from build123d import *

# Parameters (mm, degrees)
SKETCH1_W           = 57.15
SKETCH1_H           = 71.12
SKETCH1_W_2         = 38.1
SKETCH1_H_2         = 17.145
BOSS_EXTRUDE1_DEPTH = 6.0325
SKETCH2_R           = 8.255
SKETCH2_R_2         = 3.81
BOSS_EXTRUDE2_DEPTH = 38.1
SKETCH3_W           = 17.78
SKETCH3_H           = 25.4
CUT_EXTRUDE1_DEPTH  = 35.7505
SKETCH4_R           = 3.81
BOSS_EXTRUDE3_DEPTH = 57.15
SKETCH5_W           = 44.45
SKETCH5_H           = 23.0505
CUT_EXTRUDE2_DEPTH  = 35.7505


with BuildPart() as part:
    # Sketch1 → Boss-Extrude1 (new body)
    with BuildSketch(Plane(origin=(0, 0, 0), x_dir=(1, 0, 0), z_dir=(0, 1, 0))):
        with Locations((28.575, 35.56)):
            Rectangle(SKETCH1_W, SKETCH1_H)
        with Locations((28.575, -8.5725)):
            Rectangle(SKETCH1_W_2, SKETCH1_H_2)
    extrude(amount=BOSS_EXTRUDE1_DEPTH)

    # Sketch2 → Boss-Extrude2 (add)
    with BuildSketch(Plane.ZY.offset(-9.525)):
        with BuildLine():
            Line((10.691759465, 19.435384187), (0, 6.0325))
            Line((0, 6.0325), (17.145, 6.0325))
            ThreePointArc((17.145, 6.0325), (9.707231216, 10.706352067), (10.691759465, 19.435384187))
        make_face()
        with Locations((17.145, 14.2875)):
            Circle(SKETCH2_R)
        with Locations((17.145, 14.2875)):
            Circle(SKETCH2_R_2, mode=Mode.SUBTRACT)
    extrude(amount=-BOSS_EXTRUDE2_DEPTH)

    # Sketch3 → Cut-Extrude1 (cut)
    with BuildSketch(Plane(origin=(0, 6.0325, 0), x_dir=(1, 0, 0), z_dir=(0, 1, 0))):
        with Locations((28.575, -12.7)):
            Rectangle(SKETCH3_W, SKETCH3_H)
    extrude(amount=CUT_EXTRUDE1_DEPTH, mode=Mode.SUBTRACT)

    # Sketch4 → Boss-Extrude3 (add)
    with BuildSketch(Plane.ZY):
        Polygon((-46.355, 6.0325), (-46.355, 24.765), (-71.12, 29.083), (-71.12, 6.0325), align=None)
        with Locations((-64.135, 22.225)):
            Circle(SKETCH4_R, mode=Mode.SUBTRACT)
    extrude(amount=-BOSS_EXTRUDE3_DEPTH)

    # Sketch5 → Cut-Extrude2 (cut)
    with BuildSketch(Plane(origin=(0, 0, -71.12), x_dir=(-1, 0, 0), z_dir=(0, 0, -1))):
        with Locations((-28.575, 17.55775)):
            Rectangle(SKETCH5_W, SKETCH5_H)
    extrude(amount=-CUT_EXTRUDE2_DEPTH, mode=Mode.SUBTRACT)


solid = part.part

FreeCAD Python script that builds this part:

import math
import FreeCAD as App
import Part
import Sketcher

V = App.Vector
Q = App.Units.Quantity


def add_polygon(sketch, points):
    """Adds a closed chain of lines whose ends are joined by coincident constraints."""
    first, n = sketch.GeometryCount, len(points)
    for a, b in zip(points, points[1:] + points[:1]):
        sketch.addGeometry(Part.LineSegment(App.Vector(*a, 0), App.Vector(*b, 0)), False)
    for i in range(n):
        sketch.addConstraint(Sketcher.Constraint("Coincident", first + i, 2, first + (i + 1) % n, 1))

doc = App.newDocument("Part")
body = doc.addObject("PartDesign::Body", "Body")

# Sketch on XZ plane
sketch1 = body.newObject("Sketcher::SketchObject", "Sketch")
sketch1.AttachmentSupport = (doc.getObject("XZ_Plane"), [""])
sketch1.MapMode = "FlatFace"
add_polygon(sketch1, [(0, -71), (0, 0), (10, 0), (10, 17), (48, 17), (48, 0), (57, 0), (57, -71)])  # lines 0-7
sketch1.addConstraint(Sketcher.Constraint("Vertical", 0))
sketch1.addConstraint(Sketcher.Constraint("Horizontal", 1))
sketch1.addConstraint(Sketcher.Constraint("Vertical", 2))
sketch1.addConstraint(Sketcher.Constraint("Horizontal", 3))
sketch1.addConstraint(Sketcher.Constraint("Vertical", 4))
sketch1.addConstraint(Sketcher.Constraint("Horizontal", 5))
sketch1.addConstraint(Sketcher.Constraint("Vertical", 6))
sketch1.addConstraint(Sketcher.Constraint("Horizontal", 7))
sketch1.addConstraint(Sketcher.Constraint("Coincident", 0, 2, -1, 1))
sketch1.addConstraint(Sketcher.Constraint("PointOnObject", 4, 2, -1))
sketch1.addConstraint(Sketcher.Constraint("Equal", 1, 5))
sketch1.addConstraint(Sketcher.Constraint("DistanceX", 3, 1, 3, 2, Q("1.5 in")))
sketch1.addConstraint(Sketcher.Constraint("DistanceY", 0, 1, 0, 2, Q("2.8 in")))
sketch1.addConstraint(Sketcher.Constraint("DistanceX", 7, 2, 7, 1, Q("2.25 in")))
sketch1.addConstraint(Sketcher.Constraint("DistanceY", 2, 1, 2, 2, Q("0.675 in")))
pad1 = body.newObject("PartDesign::Pad", "Pad")
pad1.Profile = sketch1
pad1.Length = Q("0.2375 in")
pad1.Reversed = True

# Sketch on YZ plane
sketch2 = body.newObject("Sketcher::SketchObject", "Sketch001")
sketch2.AttachmentSupport = (doc.getObject("YZ_Plane"), [""])
sketch2.MapMode = "FlatFace"
sketch2.AttachmentOffset = App.Placement(V(0, 0, 0.375 * 25.4), App.Rotation())
sketch2.addGeometry(Part.LineSegment(V(19.4, 10.7, 0), V(6, 0, 0)), False)
sketch2.addGeometry(Part.LineSegment(V(6, 0, 0), V(6, 17.1, 0)), False)
sketch2.addGeometry(Part.ArcOfCircle(Part.Circle(V(14.3, 17.1, 0), V(0, 0, 1), 8.3), math.radians(-51), math.radians(180)), False)
sketch2.addGeometry(Part.Circle(V(14.3, 17.1, 0), V(0, 0, 1), 3.8), False)
sketch2.addConstraint(Sketcher.Constraint("Coincident", 0, 2, 1, 1))
sketch2.addConstraint(Sketcher.Constraint("Tangent", 1, 2, 2, 2))
sketch2.addConstraint(Sketcher.Constraint("Tangent", 2, 1, 0, 1))
sketch2.addConstraint(Sketcher.Constraint("Vertical", 1))
sketch2.addConstraint(Sketcher.Constraint("Coincident", 3, 3, 2, 3))
sketch2.addConstraint(Sketcher.Constraint("PointOnObject", 0, 2, -1))
sketch2.addConstraint(Sketcher.Constraint("Diameter", 3, Q("0.3 in")))
sketch2.addConstraint(Sketcher.Constraint("Radius", 2, Q("0.325 in")))
sketch2.addConstraint(Sketcher.Constraint("DistanceY", 1, 1, 1, 2, Q("0.675 in")))
sketch2.addConstraint(Sketcher.Constraint("DistanceX", -1, 1, 2, 3, Q("0.5625 in")))
pad2 = body.newObject("PartDesign::Pad", "Pad001")
pad2.Profile = sketch2
pad2.Length = Q("1.5 in")

# Sketch on XZ plane
sketch3 = body.newObject("Sketcher::SketchObject", "Sketch002")
sketch3.AttachmentSupport = (doc.getObject("XZ_Plane"), [""])
sketch3.MapMode = "FlatFace"
sketch3.AttachmentOffset = App.Placement(V(0, 0, -0.2375 * 25.4), App.Rotation())
add_polygon(sketch3, [(20, 0), (20, 25), (37, 25), (37, 0)])  # lines 0-3
sketch3.addConstraint(Sketcher.Constraint("Vertical", 0))
sketch3.addConstraint(Sketcher.Constraint("Horizontal", 1))
sketch3.addConstraint(Sketcher.Constraint("Vertical", 2))
sketch3.addConstraint(Sketcher.Constraint("Horizontal", 3))
sketch3.addConstraint(Sketcher.Constraint("PointOnObject", 2, 2, -1))
sketch3.addConstraint(Sketcher.Constraint("DistanceY", 0, 1, 0, 2, Q("1 in")))
sketch3.addConstraint(Sketcher.Constraint("DistanceX", 1, 1, 1, 2, Q("0.7 in")))
sketch3.addConstraint(Sketcher.Constraint("DistanceX", -1, 1, 0, 2, Q("0.775 in")))
pocket1 = body.newObject("PartDesign::Pocket", "Pocket")
pocket1.Profile = sketch3
pocket1.Length = Q("1.4075 in")

# Sketch on YZ plane
sketch4 = body.newObject("Sketcher::SketchObject", "Sketch003")
sketch4.AttachmentSupport = (doc.getObject("YZ_Plane"), [""])
sketch4.MapMode = "FlatFace"
add_polygon(sketch4, [(6, -46.4), (24.8, -46.4), (29.1, -71.1), (6, -71.1)])  # lines 0-3
sketch4.addGeometry(Part.Circle(V(22.2, -64.1, 0), V(0, 0, 1), 3.8), False)  # 4
sketch4.addConstraint(Sketcher.Constraint("Horizontal", 0))
sketch4.addConstraint(Sketcher.Constraint("Horizontal", 2))
sketch4.addConstraint(Sketcher.Constraint("Vertical", 3))
sketch4.addConstraint(Sketcher.Constraint("Diameter", 4, Q("0.3 in")))
sketch4.addConstraint(Sketcher.Constraint("DistanceY", 1, 2, -1, 1, Q("2.8 in")))
sketch4.addConstraint(Sketcher.Constraint("DistanceX", 4, 3, 0, 2, Q("0.1 in")))
sketch4.addConstraint(Sketcher.Constraint("DistanceY", 4, 3, 0, 2, Q("0.7 in")))
sketch4.addConstraint(Sketcher.Constraint("DistanceY", 3, 1, 3, 2, Q("0.975 in")))
sketch4.addConstraint(Sketcher.Constraint("DistanceX", 4, 3, 1, 2, Q("0.27 in")))
sketch4.addConstraint(Sketcher.Constraint("DistanceX", 0, 1, 0, 2, Q("0.7375 in")))
sketch4.addConstraint(Sketcher.Constraint("DistanceX", -1, 1, 4, 3, Q("0.875 in")))
pad3 = body.newObject("PartDesign::Pad", "Pad002")
pad3.Profile = sketch4
pad3.Length = Q("2.25 in")

# Sketch on XY plane
sketch5 = body.newObject("Sketcher::SketchObject", "Sketch004")
sketch5.AttachmentSupport = (doc.getObject("XY_Plane"), [""])
sketch5.MapMode = "FlatFace"
sketch5.AttachmentOffset = App.Placement(V(0, 0, -2.8 * 25.4), App.Rotation())
add_polygon(sketch5, [(51, 29), (51, 6), (6, 6), (6, 29)])  # lines 0-3
sketch5.addConstraint(Sketcher.Constraint("Vertical", 0))
sketch5.addConstraint(Sketcher.Constraint("Horizontal", 1))
sketch5.addConstraint(Sketcher.Constraint("Vertical", 2))
sketch5.addConstraint(Sketcher.Constraint("Horizontal", 3))
sketch5.addConstraint(Sketcher.Constraint("DistanceX", -1, 1, 0, 2, Q("2 in")))
sketch5.addConstraint(Sketcher.Constraint("DistanceX", 1, 2, 1, 1, Q("1.75 in")))
sketch5.addConstraint(Sketcher.Constraint("DistanceY", 0, 2, 0, 1, Q("0.9075 in")))
sketch5.addConstraint(Sketcher.Constraint("DistanceY", -1, 1, 2, 2, Q("1.145 in")))
pocket2 = body.newObject("PartDesign::Pocket", "Pocket001")
pocket2.Profile = sketch5
pocket2.Length = Q("1.4075 in")
pocket2.Reversed = True

doc.recompute()
